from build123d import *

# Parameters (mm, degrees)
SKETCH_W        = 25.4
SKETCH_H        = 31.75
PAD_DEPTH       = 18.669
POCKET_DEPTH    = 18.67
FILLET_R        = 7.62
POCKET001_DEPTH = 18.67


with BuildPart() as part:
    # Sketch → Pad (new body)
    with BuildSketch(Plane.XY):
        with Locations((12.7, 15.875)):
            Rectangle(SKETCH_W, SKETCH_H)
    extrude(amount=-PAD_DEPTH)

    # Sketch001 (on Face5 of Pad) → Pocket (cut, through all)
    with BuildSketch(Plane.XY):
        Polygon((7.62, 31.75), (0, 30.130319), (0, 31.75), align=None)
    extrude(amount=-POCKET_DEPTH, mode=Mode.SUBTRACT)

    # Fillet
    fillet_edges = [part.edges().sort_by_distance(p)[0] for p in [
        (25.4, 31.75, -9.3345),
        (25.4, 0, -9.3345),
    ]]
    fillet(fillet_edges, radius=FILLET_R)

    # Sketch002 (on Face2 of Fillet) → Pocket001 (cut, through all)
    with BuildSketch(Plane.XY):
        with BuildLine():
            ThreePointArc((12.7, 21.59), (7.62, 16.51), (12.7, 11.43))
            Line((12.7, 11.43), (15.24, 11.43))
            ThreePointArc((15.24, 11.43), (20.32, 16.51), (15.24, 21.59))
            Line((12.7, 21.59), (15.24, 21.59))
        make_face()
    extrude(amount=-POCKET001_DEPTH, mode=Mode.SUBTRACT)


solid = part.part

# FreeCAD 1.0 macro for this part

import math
import FreeCAD as App
import Part
import Sketcher
from FreeCAD import Vector
Q = App.Units.Quantity


def edges_at(feature, points):
    """Names of the edges that pass closest to the given points."""
    edges = feature.Shape.Edges
    near = lambda p: min(range(len(edges)), key=lambda i: edges[i].distToShape(Part.Vertex(*p))[0])
    return sorted({f"Edge{near(p) + 1}" for p in points})

doc = App.newDocument("Part")
body = doc.addObject("PartDesign::Body", "Body")

# Sketch on XY plane
sketch1 = body.newObject("Sketcher::SketchObject", "Sketch")
sketch1.AttachmentSupport = (doc.getObject("XY_Plane"), [""])
sketch1.MapMode = "FlatFace"
sketch1.addGeometry(Part.LineSegment(Vector(0, 32, 0), Vector(0, 0, 0)), False)
sketch1.addGeometry(Part.LineSegment(Vector(0, 0, 0), Vector(25, 0, 0)), False)
sketch1.addGeometry(Part.LineSegment(Vector(25, 0, 0), Vector(25, 32, 0)), False)
sketch1.addGeometry(Part.LineSegment(Vector(25, 32, 0), Vector(0, 32, 0)), False)
sketch1.addConstraint(Sketcher.Constraint("Coincident", 0, 2, 1, 1))
sketch1.addConstraint(Sketcher.Constraint("Coincident", 1, 2, 2, 1))
sketch1.addConstraint(Sketcher.Constraint("Coincident", 2, 2, 3, 1))
sketch1.addConstraint(Sketcher.Constraint("Coincident", 3, 2, 0, 1))
sketch1.addConstraint(Sketcher.Constraint("Vertical", 0))
sketch1.addConstraint(Sketcher.Constraint("Horizontal", 1))
sketch1.addConstraint(Sketcher.Constraint("Vertical", 2))
sketch1.addConstraint(Sketcher.Constraint("Horizontal", 3))
sketch1.addConstraint(Sketcher.Constraint("Coincident", 0, 2, -1, 1))
sketch1.addConstraint(Sketcher.Constraint("DistanceX", 1, 1, 1, 2, Q("1 in")))
sketch1.addConstraint(Sketcher.Constraint("DistanceY", 0, 2, 0, 1, Q("1.25 in")))
pad1 = body.newObject("PartDesign::Pad", "Pad")
pad1.Profile = sketch1
pad1.Length = Q("0.735 in")
pad1.Reversed = True

# Sketch on XY plane
sketch2 = body.newObject("Sketcher::SketchObject", "Sketch001")
sketch2.AttachmentSupport = (doc.getObject("XY_Plane"), [""])
sketch2.MapMode = "FlatFace"
sketch2.addGeometry(Part.LineSegment(Vector(0, 30.1, 0), Vector(7.6, 31.8, 0)), False)
sketch2.addGeometry(Part.LineSegment(Vector(7.6, 31.8, 0), Vector(0, 31.8, 0)), False)
sketch2.addGeometry(Part.LineSegment(Vector(0, 31.8, 0), Vector(0, 30.1, 0)), False)
sketch2.addConstraint(Sketcher.Constraint("Coincident", 0, 2, 1, 1))
sketch2.addConstraint(Sketcher.Constraint("Coincident", 1, 2, 2, 1))
sketch2.addConstraint(Sketcher.Constraint("Coincident", 2, 2, 0, 1))
sketch2.addConstraint(Sketcher.Constraint("Horizontal", 1))
sketch2.addConstraint(Sketcher.Constraint("Vertical", 2))
sketch2.addConstraint(Sketcher.Constraint("PointOnObject", 1, 2, -2))
sketch2.addConstraint(Sketcher.Constraint("DistanceX", 1, 2, 1, 1, Q("0.3 in")))
sketch2.addConstraint(Sketcher.Constraint("Angle", 0, Q("12 deg")))
sketch2.addConstraint(Sketcher.Constraint("DistanceY", -1, 1, 0, 2, Q("1.25 in")))
pocket1 = body.newObject("PartDesign::Pocket", "Pocket")
pocket1.Profile = sketch2
pocket1.Type = "ThroughAll"
doc.recompute()

fillet = body.newObject("PartDesign::Fillet", "Fillet")
fillet.Base = (pocket1, edges_at(pocket1, [(25.4, 31.75, -9.335), (25.4, 0, -9.335)]))
fillet.Radius = Q("0.3 in")

# Sketch on XY plane
sketch3 = body.newObject("Sketcher::SketchObject", "Sketch002")
sketch3.AttachmentSupport = (doc.getObject("XY_Plane"), [""])
sketch3.MapMode = "FlatFace"
sketch3.addGeometry(Part.ArcOfCircle(Part.Circle(Vector(12.7, 16.5, 0), Vector(0, 0, 1), 5.1), math.radians(90), math.radians(270)), False)
sketch3.addGeometry(Part.LineSegment(Vector(12.7, 11.4, 0), Vector(15.2, 11.4, 0)), False)
sketch3.addGeometry(Part.ArcOfCircle(Part.Circle(Vector(15.2, 16.5, 0), Vector(0, 0, 1), 5.1), math.radians(-90), math.radians(90)), False)
sketch3.addGeometry(Part.LineSegment(Vector(15.2, 21.6, 0), Vector(12.7, 21.6, 0)), False)
sketch3.addConstraint(Sketcher.Constraint("Tangent", 0, 2, 1, 1))
sketch3.addConstraint(Sketcher.Constraint("Tangent", 1, 2, 2, 1))
sketch3.addConstraint(Sketcher.Constraint("Tangent", 2, 2, 3, 1))
sketch3.addConstraint(Sketcher.Constraint("Tangent", 3, 2, 0, 1))
sketch3.addConstraint(Sketcher.Constraint("Horizontal", 1))
sketch3.addConstraint(Sketcher.Constraint("Horizontal", 3))
sketch3.addConstraint(Sketcher.Constraint("Radius", 0, Q("0.2 in")))
sketch3.addConstraint(Sketcher.Constraint("DistanceX", 1, 1, 1, 2, Q("0.1 in")))
sketch3.addConstraint(Sketcher.Constraint("DistanceX", -1, 1, 0, 3, Q("0.5 in")))
sketch3.addConstraint(Sketcher.Constraint("DistanceY", -1, 1, 0, 3, Q("0.65 in")))
pocket2 = body.newObject("PartDesign::Pocket", "Pocket001")
pocket2.Profile = sketch3
pocket2.Type = "ThroughAll"

doc.recompute()
